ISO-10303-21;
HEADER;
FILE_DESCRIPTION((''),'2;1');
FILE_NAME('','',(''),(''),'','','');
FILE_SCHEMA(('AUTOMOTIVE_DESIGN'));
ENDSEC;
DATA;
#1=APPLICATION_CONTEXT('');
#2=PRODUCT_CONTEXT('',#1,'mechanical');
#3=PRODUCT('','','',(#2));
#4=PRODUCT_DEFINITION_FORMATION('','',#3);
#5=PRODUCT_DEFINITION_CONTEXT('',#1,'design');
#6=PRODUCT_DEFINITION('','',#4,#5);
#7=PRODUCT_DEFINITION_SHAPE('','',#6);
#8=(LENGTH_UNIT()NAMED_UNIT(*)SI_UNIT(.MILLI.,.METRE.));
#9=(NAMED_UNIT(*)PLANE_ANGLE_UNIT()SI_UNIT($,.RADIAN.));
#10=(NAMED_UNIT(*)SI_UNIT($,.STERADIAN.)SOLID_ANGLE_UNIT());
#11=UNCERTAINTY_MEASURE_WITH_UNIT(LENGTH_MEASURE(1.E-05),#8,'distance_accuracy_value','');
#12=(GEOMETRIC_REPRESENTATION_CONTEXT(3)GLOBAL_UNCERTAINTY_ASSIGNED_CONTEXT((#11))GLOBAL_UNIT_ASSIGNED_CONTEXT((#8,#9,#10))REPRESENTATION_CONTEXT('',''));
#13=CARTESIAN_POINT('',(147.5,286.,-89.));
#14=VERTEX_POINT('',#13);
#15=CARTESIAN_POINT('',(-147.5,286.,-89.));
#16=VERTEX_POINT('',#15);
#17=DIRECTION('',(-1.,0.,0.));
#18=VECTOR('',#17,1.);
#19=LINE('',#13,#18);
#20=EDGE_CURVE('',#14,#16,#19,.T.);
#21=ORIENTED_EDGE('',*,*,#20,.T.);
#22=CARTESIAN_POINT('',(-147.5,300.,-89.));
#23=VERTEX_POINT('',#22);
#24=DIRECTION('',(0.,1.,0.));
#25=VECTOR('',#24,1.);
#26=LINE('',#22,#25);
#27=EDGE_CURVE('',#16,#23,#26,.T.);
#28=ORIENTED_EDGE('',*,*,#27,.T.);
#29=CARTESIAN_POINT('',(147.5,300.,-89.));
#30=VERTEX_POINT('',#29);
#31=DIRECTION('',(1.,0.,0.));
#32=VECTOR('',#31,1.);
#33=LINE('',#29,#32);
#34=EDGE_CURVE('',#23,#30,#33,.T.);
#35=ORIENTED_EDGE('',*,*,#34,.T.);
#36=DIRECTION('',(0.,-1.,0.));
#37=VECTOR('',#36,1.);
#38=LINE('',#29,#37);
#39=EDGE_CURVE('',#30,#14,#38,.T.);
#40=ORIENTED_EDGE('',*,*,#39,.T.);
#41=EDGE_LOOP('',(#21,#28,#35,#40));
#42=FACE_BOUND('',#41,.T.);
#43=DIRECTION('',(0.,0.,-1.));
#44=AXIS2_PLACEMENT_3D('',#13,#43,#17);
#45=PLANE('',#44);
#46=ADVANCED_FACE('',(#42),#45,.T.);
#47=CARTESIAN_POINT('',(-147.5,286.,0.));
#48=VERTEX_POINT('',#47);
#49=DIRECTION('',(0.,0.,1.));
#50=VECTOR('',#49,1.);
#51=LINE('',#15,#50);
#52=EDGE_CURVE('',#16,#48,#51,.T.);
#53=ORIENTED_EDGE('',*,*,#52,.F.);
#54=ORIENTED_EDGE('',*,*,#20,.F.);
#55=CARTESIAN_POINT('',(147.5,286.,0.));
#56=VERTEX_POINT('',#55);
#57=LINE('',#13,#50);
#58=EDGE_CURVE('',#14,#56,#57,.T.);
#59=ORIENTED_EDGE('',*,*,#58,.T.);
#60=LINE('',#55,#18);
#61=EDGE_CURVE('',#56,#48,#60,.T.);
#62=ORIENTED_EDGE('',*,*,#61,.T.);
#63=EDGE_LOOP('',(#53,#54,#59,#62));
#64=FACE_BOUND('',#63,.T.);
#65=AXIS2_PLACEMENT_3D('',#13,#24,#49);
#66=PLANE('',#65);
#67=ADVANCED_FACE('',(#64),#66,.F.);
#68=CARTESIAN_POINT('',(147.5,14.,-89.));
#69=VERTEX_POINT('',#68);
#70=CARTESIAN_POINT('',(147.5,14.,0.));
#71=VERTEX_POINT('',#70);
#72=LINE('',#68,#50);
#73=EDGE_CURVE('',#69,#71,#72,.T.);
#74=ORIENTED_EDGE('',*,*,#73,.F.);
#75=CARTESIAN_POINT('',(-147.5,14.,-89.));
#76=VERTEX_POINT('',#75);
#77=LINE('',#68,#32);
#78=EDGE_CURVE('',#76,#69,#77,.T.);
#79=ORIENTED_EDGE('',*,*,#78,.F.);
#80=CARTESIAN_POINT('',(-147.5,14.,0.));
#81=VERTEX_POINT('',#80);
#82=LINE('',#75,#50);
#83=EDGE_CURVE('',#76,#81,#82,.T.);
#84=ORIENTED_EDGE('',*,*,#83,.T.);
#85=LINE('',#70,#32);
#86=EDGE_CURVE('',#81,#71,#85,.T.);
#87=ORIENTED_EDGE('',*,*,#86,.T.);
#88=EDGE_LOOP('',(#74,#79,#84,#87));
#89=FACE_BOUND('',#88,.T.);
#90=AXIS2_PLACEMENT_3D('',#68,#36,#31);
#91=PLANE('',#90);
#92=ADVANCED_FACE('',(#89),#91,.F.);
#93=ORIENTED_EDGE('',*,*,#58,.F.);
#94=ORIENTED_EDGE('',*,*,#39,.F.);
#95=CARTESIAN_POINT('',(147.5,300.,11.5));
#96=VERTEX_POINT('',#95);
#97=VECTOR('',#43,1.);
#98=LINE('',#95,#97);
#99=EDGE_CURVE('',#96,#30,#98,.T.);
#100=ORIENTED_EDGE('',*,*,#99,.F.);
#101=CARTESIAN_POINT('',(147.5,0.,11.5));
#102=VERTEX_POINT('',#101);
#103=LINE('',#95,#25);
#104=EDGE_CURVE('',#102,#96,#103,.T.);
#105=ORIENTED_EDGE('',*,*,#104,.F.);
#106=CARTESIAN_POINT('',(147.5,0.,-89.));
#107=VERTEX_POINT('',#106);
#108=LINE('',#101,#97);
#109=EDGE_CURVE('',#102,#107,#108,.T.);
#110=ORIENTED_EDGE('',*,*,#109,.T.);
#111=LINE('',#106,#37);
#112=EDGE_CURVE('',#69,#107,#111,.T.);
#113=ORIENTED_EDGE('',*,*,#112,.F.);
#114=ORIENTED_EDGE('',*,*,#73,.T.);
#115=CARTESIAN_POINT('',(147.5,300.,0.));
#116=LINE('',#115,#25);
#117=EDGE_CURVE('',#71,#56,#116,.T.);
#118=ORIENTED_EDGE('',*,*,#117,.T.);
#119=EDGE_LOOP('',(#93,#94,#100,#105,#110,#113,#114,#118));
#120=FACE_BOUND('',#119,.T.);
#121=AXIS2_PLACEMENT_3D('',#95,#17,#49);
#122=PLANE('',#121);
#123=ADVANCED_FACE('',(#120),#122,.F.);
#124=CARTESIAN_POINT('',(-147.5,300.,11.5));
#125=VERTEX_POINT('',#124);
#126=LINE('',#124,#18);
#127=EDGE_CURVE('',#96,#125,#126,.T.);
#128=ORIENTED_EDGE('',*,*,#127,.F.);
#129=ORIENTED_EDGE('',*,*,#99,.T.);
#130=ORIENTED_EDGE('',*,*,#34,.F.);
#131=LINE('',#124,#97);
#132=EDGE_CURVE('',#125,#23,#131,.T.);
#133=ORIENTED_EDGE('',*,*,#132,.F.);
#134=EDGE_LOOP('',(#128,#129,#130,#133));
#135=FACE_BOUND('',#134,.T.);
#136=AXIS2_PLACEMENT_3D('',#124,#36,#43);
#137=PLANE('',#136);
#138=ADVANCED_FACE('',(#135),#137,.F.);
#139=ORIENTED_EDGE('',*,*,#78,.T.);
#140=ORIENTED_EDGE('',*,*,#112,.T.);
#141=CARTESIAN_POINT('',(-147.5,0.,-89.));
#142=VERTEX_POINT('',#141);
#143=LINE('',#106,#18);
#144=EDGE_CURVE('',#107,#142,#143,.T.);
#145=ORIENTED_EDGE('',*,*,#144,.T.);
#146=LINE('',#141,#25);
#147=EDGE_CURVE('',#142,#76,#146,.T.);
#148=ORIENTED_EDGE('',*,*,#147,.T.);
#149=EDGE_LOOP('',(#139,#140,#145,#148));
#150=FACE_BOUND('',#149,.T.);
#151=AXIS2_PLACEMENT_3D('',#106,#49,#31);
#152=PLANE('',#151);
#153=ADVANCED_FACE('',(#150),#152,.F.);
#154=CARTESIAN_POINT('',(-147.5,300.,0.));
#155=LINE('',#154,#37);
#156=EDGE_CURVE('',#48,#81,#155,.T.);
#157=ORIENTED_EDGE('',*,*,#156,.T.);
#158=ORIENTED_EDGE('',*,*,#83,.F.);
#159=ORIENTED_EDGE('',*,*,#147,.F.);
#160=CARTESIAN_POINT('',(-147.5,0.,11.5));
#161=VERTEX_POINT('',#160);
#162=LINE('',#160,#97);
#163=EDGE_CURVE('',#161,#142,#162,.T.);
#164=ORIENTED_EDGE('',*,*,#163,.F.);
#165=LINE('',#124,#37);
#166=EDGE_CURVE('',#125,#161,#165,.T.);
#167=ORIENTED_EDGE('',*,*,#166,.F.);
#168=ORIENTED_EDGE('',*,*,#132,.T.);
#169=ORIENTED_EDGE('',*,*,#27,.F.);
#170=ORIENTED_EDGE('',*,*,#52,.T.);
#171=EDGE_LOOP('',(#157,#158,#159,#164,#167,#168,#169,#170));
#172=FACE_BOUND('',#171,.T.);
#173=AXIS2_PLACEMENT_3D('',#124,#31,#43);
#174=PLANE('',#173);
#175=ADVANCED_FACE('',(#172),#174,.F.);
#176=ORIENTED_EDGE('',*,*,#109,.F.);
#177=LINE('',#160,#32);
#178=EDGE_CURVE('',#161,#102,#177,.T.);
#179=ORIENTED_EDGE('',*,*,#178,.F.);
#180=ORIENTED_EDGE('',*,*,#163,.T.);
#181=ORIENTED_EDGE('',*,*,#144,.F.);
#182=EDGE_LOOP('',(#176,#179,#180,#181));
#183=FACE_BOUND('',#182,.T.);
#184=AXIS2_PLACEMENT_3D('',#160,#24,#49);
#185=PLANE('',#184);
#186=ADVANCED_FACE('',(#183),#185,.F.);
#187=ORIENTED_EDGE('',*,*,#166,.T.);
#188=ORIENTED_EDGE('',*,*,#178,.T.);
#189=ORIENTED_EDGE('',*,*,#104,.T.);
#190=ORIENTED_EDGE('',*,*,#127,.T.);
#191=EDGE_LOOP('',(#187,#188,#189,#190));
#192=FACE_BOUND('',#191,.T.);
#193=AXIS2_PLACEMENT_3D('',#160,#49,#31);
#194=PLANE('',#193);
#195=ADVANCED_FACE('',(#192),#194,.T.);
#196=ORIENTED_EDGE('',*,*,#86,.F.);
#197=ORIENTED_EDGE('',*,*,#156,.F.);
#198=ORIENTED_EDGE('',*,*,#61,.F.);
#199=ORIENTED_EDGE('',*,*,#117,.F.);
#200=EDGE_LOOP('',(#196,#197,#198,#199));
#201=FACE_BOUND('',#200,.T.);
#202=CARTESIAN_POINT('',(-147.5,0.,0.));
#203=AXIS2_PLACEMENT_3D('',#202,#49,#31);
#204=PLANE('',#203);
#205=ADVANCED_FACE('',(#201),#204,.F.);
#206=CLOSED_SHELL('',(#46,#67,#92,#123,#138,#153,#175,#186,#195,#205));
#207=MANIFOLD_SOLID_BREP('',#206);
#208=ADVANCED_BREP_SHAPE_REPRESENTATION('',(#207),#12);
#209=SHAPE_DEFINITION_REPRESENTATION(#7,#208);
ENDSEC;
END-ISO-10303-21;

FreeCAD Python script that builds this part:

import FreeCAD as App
import Part
import Sketcher

V = App.Vector
Q = App.Units.Quantity


def add_polygon(sketch, points):
    """Adds a closed chain of lines whose ends are joined by coincident constraints."""
    first, n = sketch.GeometryCount, len(points)
    for a, b in zip(points, points[1:] + points[:1]):
        sketch.addGeometry(Part.LineSegment(App.Vector(*a, 0), App.Vector(*b, 0)), False)
    for i in range(n):
        sketch.addConstraint(Sketcher.Constraint("Coincident", first + i, 2, first + (i + 1) % n, 1))

doc = App.newDocument("Part")
params = doc.addObject("Spreadsheet::Sheet", "Params")
for row, (alias, value) in enumerate([
    ("sketch1_width", "295 mm"),
    ("sketch1_height", "300 mm"),
    ("pad1_length", "11.5 mm"),
    ("sketch2_width", "295 mm"),
    ("sketch2_height", "14 mm"),
    ("pad2_length", "89 mm"),
], start=1):
    params.set(f"A{row}", alias)
    params.set(f"B{row}", "=" + value)
    params.setAlias(f"B{row}", alias)

body = doc.addObject("PartDesign::Body", "Body")

# Sketch on XY plane
sketch1 = body.newObject("Sketcher::SketchObject", "Sketch")
sketch1.AttachmentSupport = (doc.getObject("XY_Plane"), [""])
sketch1.MapMode = "FlatFace"
add_polygon(sketch1, [(-148, 300), (-148, 0), (148, 0), (148, 300)])  # lines 0-3
sketch1.addConstraint([
    Sketcher.Constraint("Vertical", 0),
    Sketcher.Constraint("Horizontal", 1),
    Sketcher.Constraint("Vertical", 2),
    Sketcher.Constraint("Horizontal", 3),
    Sketcher.Constraint("Symmetric", 0, 2, 1, 2, -1, 1),
    Sketcher.Constraint("DistanceX", 1, 1, 1, 2, Q("295 mm")),
    Sketcher.Constraint("DistanceY", 0, 2, 0, 1, Q("300 mm")),
])
sketch1.setExpression("Constraints[9]", "Params.sketch1_width")
sketch1.setExpression("Constraints[10]", "Params.sketch1_height")
pad1 = body.newObject("PartDesign::Pad", "Pad")
pad1.Profile = sketch1
pad1.setExpression("Length", "Params.pad1_length")

# Sketch on XY plane
sketch2 = body.newObject("Sketcher::SketchObject", "Sketch001")
sketch2.AttachmentSupport = (doc.getObject("XY_Plane"), [""])
sketch2.MapMode = "FlatFace"
add_polygon(sketch2, [(148, 300), (148, 286), (-148, 286), (-148, 300)])  # lines 0-3
add_polygon(sketch2, [(148, 14), (148, 0), (-148, 0), (-148, 14)])  # lines 4-7
sketch2.addConstraint([
    Sketcher.Constraint("Vertical", 0),
    Sketcher.Constraint("Horizontal", 1),
    Sketcher.Constraint("Vertical", 2),
    Sketcher.Constraint("Horizontal", 3),
    Sketcher.Constraint("Vertical", 4),
    Sketcher.Constraint("Horizontal", 5),
    Sketcher.Constraint("Vertical", 6),
    Sketcher.Constraint("Horizontal", 7),
    Sketcher.Constraint("Symmetric", 4, 2, 5, 2, -1, 1),
    Sketcher.Constraint("Vertical", 3, 2, 4, 2),
    Sketcher.Constraint("Vertical", 2, 2, 5, 2),
    Sketcher.Constraint("Equal", 2, 4),
    Sketcher.Constraint("DistanceX", 1, 2, 1, 1, Q("295 mm")),
    Sketcher.Constraint("DistanceY", 0, 2, 0, 1, Q("14 mm")),
    Sketcher.Constraint("DistanceY", -1, 1, 0, 2, Q("286 mm")),
])
sketch2.setExpression("Constraints[20]", "Params.sketch2_width")
sketch2.setExpression("Constraints[21]", "Params.sketch2_height")
pad2 = body.newObject("PartDesign::Pad", "Pad001")
pad2.Profile = sketch2
pad2.setExpression("Length", "Params.pad2_length")
pad2.Reversed = True

doc.recompute()
